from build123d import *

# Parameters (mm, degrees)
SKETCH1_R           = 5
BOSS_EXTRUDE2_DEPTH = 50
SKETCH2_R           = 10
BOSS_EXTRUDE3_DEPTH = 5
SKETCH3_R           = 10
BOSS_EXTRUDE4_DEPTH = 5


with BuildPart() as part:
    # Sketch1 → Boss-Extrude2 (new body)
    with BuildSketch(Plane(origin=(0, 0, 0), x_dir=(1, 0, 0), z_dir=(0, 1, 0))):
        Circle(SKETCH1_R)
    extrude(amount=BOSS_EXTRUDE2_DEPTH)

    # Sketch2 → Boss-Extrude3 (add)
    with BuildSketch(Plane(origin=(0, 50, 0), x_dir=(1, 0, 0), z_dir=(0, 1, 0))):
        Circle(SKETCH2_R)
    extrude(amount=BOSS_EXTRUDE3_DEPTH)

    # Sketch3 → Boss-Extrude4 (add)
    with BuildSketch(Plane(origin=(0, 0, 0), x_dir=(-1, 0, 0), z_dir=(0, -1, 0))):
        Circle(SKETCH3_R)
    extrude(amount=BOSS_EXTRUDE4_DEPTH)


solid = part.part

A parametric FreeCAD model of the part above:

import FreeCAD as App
import Part
import Sketcher

doc = App.newDocument("Part")
body = doc.addObject("PartDesign::Body", "Body")

sketch1 = body.newObject("Sketcher::SketchObject", "Sketch")
sketch1.AttachmentSupport = (doc.getObject("XZ_Plane"), [""])
sketch1.MapMode = "FlatFace"
sketch1.addGeometry(Part.Circle(App.Vector(0, 0, 0), App.Vector(0, 0, 1), 5), False)
sketch1.addConstraint([
    Sketcher.Constraint("Coincident", 0, 3, -1, 1),
    Sketcher.Constraint("Diameter", 0, 10.0),
])
pad1 = body.newObject("PartDesign::Pad", "Pad")
pad1.Profile = sketch1
pad1.Length = 50
pad1.Reversed = True

sketch2 = body.newObject("Sketcher::SketchObject", "Sketch001")
sketch2.AttachmentSupport = (doc.getObject("XZ_Plane"), [""])
sketch2.MapMode = "FlatFace"
sketch2.AttachmentOffset = App.Placement(App.Vector(0, 0, -50), App.Rotation())
sketch2.addGeometry(Part.Circle(App.Vector(0, 0, 0), App.Vector(0, 0, 1), 10), False)
sketch2.addConstraint([
    Sketcher.Constraint("Coincident", 0, 3, -1, 1),
    Sketcher.Constraint("Diameter", 0, 20.0),
])
pad2 = body.newObject("PartDesign::Pad", "Pad001")
pad2.Profile = sketch2
pad2.Length = 5
pad2.Reversed = True

sketch3 = body.newObject("Sketcher::SketchObject", "Sketch002")
sketch3.AttachmentSupport = (doc.getObject("XZ_Plane"), [""])
sketch3.MapMode = "FlatFace"
sketch3.addGeometry(Part.Circle(App.Vector(0, 0, 0), App.Vector(0, 0, 1), 10), False)
sketch3.addConstraint([
    Sketcher.Constraint("Coincident", 0, 3, -1, 1),
    Sketcher.Constraint("Diameter", 0, 20.0),
])
pad3 = body.newObject("PartDesign::Pad", "Pad002")
pad3.Profile = sketch3
pad3.Length = 5

doc.recompute()
